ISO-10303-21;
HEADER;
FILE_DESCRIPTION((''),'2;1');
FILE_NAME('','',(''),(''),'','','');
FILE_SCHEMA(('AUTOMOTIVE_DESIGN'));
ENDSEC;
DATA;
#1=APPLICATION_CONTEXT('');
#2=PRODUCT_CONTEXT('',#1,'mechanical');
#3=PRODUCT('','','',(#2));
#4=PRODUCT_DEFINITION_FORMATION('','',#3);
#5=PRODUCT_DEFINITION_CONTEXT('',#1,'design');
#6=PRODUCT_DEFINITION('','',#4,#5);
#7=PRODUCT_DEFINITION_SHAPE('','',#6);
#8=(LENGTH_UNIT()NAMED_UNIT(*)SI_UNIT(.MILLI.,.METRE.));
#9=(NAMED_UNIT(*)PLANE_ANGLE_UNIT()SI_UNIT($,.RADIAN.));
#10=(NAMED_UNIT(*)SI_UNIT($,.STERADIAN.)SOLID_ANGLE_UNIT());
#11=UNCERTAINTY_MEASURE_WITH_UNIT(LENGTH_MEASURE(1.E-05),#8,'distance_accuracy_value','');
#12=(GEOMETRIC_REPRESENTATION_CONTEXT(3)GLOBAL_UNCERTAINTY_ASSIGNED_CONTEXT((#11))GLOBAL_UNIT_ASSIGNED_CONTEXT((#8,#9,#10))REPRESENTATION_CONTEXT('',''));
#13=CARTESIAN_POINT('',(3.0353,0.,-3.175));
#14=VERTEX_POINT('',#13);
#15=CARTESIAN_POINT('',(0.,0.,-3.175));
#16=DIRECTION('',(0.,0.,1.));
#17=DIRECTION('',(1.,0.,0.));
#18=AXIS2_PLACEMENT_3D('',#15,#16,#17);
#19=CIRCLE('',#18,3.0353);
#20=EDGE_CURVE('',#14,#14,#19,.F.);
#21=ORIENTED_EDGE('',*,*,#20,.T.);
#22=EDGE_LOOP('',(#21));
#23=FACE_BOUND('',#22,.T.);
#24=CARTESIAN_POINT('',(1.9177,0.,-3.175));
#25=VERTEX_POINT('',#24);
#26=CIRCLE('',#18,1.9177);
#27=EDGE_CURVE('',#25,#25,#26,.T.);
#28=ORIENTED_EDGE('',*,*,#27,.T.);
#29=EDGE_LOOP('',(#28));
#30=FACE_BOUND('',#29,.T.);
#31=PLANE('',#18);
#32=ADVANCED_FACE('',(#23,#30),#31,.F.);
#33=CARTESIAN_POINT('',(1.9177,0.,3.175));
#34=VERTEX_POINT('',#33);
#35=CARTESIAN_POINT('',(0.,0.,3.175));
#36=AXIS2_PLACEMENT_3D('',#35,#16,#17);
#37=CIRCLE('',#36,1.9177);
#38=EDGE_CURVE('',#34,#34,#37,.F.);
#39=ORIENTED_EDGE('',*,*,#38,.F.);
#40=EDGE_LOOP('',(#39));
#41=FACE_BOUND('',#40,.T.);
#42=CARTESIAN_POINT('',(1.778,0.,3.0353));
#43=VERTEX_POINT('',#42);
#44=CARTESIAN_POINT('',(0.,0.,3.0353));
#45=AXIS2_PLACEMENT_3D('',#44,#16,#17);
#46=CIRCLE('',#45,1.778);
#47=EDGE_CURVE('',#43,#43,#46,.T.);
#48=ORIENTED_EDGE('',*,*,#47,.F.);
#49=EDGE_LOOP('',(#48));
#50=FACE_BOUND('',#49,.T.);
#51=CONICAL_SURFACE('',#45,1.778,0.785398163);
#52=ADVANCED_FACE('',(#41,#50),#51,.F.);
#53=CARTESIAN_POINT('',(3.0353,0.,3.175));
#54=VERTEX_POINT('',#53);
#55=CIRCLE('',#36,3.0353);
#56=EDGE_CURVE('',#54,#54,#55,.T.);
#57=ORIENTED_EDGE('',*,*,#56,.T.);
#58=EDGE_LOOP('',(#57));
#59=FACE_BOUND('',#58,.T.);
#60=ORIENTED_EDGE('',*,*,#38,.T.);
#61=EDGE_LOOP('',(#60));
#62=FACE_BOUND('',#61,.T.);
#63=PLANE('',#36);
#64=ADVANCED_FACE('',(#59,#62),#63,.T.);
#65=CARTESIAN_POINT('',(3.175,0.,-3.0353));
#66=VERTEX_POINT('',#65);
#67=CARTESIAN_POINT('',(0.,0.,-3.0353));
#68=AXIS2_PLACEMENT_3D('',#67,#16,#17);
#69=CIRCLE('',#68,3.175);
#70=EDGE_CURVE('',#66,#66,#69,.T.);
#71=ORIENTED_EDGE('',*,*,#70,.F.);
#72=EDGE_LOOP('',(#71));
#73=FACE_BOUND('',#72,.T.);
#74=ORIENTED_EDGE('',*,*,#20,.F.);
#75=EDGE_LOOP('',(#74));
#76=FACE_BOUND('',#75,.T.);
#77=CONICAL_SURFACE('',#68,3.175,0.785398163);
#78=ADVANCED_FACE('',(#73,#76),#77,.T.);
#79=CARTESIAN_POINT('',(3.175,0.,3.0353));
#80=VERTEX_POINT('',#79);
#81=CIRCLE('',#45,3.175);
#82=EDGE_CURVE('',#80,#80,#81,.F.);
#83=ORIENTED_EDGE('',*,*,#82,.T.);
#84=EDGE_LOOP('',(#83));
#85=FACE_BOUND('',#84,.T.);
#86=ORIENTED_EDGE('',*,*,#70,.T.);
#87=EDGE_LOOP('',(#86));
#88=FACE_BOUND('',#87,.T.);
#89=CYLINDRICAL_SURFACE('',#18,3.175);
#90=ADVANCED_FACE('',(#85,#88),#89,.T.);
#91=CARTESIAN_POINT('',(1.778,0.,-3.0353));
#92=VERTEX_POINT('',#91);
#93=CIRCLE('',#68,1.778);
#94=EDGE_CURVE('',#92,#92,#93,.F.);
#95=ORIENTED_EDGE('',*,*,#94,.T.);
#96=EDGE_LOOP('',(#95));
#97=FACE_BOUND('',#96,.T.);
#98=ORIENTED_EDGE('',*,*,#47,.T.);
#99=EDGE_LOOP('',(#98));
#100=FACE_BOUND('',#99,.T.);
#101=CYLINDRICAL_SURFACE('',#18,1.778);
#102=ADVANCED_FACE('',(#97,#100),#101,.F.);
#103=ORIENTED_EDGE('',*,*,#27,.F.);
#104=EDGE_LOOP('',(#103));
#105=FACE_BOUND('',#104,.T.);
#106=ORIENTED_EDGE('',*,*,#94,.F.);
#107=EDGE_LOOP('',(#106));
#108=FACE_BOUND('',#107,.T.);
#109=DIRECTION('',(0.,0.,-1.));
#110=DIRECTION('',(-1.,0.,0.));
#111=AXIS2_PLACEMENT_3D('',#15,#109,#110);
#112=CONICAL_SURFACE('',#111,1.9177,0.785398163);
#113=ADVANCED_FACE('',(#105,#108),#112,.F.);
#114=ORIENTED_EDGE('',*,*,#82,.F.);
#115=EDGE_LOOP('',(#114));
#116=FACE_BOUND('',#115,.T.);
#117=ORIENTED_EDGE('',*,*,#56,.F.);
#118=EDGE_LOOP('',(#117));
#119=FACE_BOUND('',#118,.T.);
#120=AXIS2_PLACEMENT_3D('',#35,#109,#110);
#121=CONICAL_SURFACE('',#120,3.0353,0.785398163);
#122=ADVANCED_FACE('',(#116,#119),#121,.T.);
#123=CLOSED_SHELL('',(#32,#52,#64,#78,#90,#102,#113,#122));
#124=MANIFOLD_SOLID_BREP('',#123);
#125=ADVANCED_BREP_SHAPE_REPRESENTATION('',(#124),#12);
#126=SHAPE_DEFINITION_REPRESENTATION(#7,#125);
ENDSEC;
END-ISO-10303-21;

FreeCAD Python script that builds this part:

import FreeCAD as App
import Part
import Sketcher
Q = App.Units.Quantity


def edges_at(feature, points):
    """Names of the edges that pass closest to the given points."""
    edges = feature.Shape.Edges
    near = lambda p: min(range(len(edges)), key=lambda i: edges[i].distToShape(Part.Vertex(*p))[0])
    return sorted({f"Edge{near(p) + 1}" for p in points})

doc = App.newDocument("Part")
body = doc.addObject("PartDesign::Body", "Body")

# Sketch on XY plane
sketch1 = body.newObject("Sketcher::SketchObject", "Sketch")
sketch1.AttachmentSupport = (doc.getObject("XY_Plane"), [""])
sketch1.MapMode = "FlatFace"
sketch1.addGeometry(Part.Circle(App.Vector(0, 0, 0), App.Vector(0, 0, 1), 3.175), False)
sketch1.addGeometry(Part.Circle(App.Vector(0, 0, 0), App.Vector(0, 0, 1), 1.778), False)
sketch1.addConstraint(Sketcher.Constraint("Coincident", 0, 3, -1, 1))
sketch1.addConstraint(Sketcher.Constraint("Coincident", 1, 3, -1, 1))
sketch1.addConstraint(Sketcher.Constraint("Diameter", 0, Q("0.25 in")))
sketch1.addConstraint(Sketcher.Constraint("Diameter", 1, Q("0.14 in")))
pad1 = body.newObject("PartDesign::Pad", "Pad")
pad1.Profile = sketch1
pad1.Type = "TwoLengths"
pad1.Length = Q("0.125 in")
pad1.Length2 = Q("0.125 in")
doc.recompute()

chamfer = body.newObject("PartDesign::Chamfer", "Chamfer")
chamfer.Base = (pad1, edges_at(pad1, [
    (-3.175, 0, -3.175),
    (-1.778, 0, -3.175),
    (-3.175, 0, 3.175),
    (-1.778, 0, 3.175),
]))
chamfer.Size = Q("0.0055 in")

doc.recompute()
